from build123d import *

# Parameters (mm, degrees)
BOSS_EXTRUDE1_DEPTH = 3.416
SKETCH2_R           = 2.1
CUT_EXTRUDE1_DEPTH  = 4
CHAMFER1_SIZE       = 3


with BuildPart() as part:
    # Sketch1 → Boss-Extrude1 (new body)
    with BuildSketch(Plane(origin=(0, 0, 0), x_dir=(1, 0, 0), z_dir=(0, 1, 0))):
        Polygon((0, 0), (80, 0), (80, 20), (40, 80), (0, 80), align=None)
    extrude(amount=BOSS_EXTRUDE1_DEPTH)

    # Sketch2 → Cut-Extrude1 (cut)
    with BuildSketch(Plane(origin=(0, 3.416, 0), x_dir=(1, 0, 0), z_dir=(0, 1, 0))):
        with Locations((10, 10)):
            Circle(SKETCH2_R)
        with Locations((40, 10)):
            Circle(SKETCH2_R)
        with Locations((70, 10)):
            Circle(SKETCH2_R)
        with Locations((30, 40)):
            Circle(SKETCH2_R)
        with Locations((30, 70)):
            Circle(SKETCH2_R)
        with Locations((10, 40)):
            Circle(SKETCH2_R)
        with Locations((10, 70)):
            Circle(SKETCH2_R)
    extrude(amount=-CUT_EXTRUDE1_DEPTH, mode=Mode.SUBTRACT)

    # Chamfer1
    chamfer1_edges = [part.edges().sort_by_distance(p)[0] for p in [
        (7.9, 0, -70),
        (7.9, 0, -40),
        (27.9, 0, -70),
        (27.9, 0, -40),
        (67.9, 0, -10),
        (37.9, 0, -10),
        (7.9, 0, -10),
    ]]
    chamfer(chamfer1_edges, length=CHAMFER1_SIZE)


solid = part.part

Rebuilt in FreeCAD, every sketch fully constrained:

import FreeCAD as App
import Part
import Sketcher

V = App.Vector
Q = App.Units.Quantity


def edges_at(feature, points):
    """Names of the edges that pass closest to the given points."""
    edges = feature.Shape.Edges
    near = lambda p: min(range(len(edges)), key=lambda i: edges[i].distToShape(Part.Vertex(*p))[0])
    return sorted({f"Edge{near(p) + 1}" for p in points})

doc = App.newDocument("Part")
body = doc.addObject("PartDesign::Body", "Body")

sketch1 = body.newObject("Sketcher::SketchObject", "Sketch")
sketch1.AttachmentSupport = (doc.getObject("XZ_Plane"), [""])
sketch1.MapMode = "FlatFace"
sketch1.addGeometry(Part.LineSegment(V(0, 0, 0), V(80, 0, 0)), False)
sketch1.addGeometry(Part.LineSegment(V(80, 0, 0), V(80, -20, 0)), False)
sketch1.addGeometry(Part.LineSegment(V(80, -20, 0), V(40, -80, 0)), False)
sketch1.addGeometry(Part.LineSegment(V(40, -80, 0), V(0, -80, 0)), False)
sketch1.addGeometry(Part.LineSegment(V(0, -80, 0), V(0, 0, 0)), False)
sketch1.addConstraint(Sketcher.Constraint("Coincident", 0, 2, 1, 1))
sketch1.addConstraint(Sketcher.Constraint("Coincident", 1, 2, 2, 1))
sketch1.addConstraint(Sketcher.Constraint("Coincident", 2, 2, 3, 1))
sketch1.addConstraint(Sketcher.Constraint("Coincident", 3, 2, 4, 1))
sketch1.addConstraint(Sketcher.Constraint("Coincident", 4, 2, 0, 1))
sketch1.addConstraint(Sketcher.Constraint("Horizontal", 0))
sketch1.addConstraint(Sketcher.Constraint("Vertical", 1))
sketch1.addConstraint(Sketcher.Constraint("Horizontal", 3))
sketch1.addConstraint(Sketcher.Constraint("Vertical", 4))
sketch1.addConstraint(Sketcher.Constraint("Coincident", 4, 2, -1, 1))
sketch1.addConstraint(Sketcher.Constraint("Equal", 0, 4))
sketch1.addConstraint(Sketcher.Constraint("DistanceX", 0, 1, 0, 2, Q("80 mm")))
sketch1.addConstraint(Sketcher.Constraint("DistanceX", 3, 2, 3, 1, Q("40 mm")))
sketch1.addConstraint(Sketcher.Constraint("DistanceY", 1, 2, 1, 1, Q("20 mm")))
pad1 = body.newObject("PartDesign::Pad", "Pad")
pad1.Profile = sketch1
pad1.Length = 3.416
pad1.Reversed = True

sketch2 = body.newObject("Sketcher::SketchObject", "Sketch001")
sketch2.AttachmentSupport = (doc.getObject("XZ_Plane"), [""])
sketch2.MapMode = "FlatFace"
sketch2.AttachmentOffset = App.Placement(V(0, 0, -3.416), App.Rotation())
sketch2.addGeometry(Part.Circle(V(10, -10, 0), V(0, 0, 1), 2.1), False)
sketch2.addGeometry(Part.Circle(V(40, -10, 0), V(0, 0, 1), 2.1), False)
sketch2.addGeometry(Part.Circle(V(70, -10, 0), V(0, 0, 1), 2.1), False)
sketch2.addGeometry(Part.Circle(V(30, -40, 0), V(0, 0, 1), 2.1), False)
sketch2.addGeometry(Part.Circle(V(30, -70, 0), V(0, 0, 1), 2.1), False)
sketch2.addGeometry(Part.Circle(V(10, -40, 0), V(0, 0, 1), 2.1), False)
sketch2.addGeometry(Part.Circle(V(10, -70, 0), V(0, 0, 1), 2.1), False)
sketch2.addConstraint(Sketcher.Constraint("Equal", 0, 1))
sketch2.addConstraint(Sketcher.Constraint("Equal", 1, 2))
sketch2.addConstraint(Sketcher.Constraint("Equal", 2, 3))
sketch2.addConstraint(Sketcher.Constraint("Equal", 3, 4))
sketch2.addConstraint(Sketcher.Constraint("Equal", 4, 5))
sketch2.addConstraint(Sketcher.Constraint("Equal", 5, 6))
sketch2.addConstraint(Sketcher.Constraint("Horizontal", 0, 3, 1, 3))
sketch2.addConstraint(Sketcher.Constraint("Horizontal", 1, 3, 2, 3))
sketch2.addConstraint(Sketcher.Constraint("Horizontal", 3, 3, 5, 3))
sketch2.addConstraint(Sketcher.Constraint("Horizontal", 4, 3, 6, 3))
sketch2.addConstraint(Sketcher.Constraint("Vertical", 3, 3, 4, 3))
sketch2.addConstraint(Sketcher.Constraint("Vertical", 0, 3, 5, 3))
sketch2.addConstraint(Sketcher.Constraint("Vertical", 5, 3, 6, 3))
sketch2.addConstraint(Sketcher.Constraint("Diameter", 0, Q("4.2 mm")))
sketch2.addConstraint(Sketcher.Constraint("DistanceX", -1, 1, 0, 3, Q("10 mm")))
sketch2.addConstraint(Sketcher.Constraint("DistanceY", 0, 3, -1, 1, Q("10 mm")))
sketch2.addConstraint(Sketcher.Constraint("DistanceX", -1, 1, 1, 3, Q("40 mm")))
sketch2.addConstraint(Sketcher.Constraint("DistanceX", -1, 1, 2, 3, Q("70 mm")))
sketch2.addConstraint(Sketcher.Constraint("DistanceX", -1, 1, 3, 3, Q("30 mm")))
sketch2.addConstraint(Sketcher.Constraint("DistanceY", 3, 3, -1, 1, Q("40 mm")))
sketch2.addConstraint(Sketcher.Constraint("DistanceY", 4, 3, -1, 1, Q("70 mm")))
pocket1 = body.newObject("PartDesign::Pocket", "Pocket")
pocket1.Profile = sketch2
pocket1.Length = 4
pocket1.Reversed = True
doc.recompute()

chamfer = body.newObject("PartDesign::Chamfer", "Chamfer")
chamfer.Base = (pocket1, edges_at(pocket1, [
    (7.9, 0, -70),
    (7.9, 0, -40),
    (27.9, 0, -70),
    (27.9, 0, -40),
    (67.9, 0, -10),
    (37.9, 0, -10),
    (7.9, 0, -10),
]))
chamfer.Size = 3

doc.recompute()
